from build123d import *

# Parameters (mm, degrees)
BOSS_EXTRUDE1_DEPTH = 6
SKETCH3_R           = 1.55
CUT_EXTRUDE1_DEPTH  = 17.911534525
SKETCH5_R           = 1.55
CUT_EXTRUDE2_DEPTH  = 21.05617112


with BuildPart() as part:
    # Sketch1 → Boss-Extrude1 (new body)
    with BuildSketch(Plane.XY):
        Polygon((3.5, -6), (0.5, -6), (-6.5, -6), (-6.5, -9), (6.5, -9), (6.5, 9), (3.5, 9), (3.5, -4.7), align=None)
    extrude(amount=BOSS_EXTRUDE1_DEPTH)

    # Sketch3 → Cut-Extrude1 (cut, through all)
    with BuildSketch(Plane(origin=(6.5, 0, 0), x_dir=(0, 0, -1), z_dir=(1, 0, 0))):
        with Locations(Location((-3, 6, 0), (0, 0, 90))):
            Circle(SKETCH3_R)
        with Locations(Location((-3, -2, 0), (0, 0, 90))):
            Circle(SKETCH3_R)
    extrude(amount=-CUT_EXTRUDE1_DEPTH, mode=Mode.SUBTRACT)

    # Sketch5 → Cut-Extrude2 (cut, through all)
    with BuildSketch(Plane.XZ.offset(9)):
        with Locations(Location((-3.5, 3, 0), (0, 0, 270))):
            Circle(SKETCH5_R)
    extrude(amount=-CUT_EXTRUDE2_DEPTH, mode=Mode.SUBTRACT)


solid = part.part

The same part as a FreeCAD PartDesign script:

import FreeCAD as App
import Part
import Sketcher
from FreeCAD import Vector

doc = App.newDocument("Part")
body = doc.addObject("PartDesign::Body", "Body")

sketch1 = body.newObject("Sketcher::SketchObject", "Sketch")
sketch1.AttachmentSupport = (doc.getObject("XY_Plane"), [""])
sketch1.MapMode = "FlatFace"
sketch1.addGeometry([
    Part.LineSegment(Vector(3.5, -6, 0), Vector(-6.5, -6, 0)),
    Part.LineSegment(Vector(-6.5, -6, 0), Vector(-6.5, -9, 0)),
    Part.LineSegment(Vector(-6.5, -9, 0), Vector(6.5, -9, 0)),
    Part.LineSegment(Vector(6.5, -9, 0), Vector(6.5, 9, 0)),
    Part.LineSegment(Vector(6.5, 9, 0), Vector(3.5, 9, 0)),
    Part.LineSegment(Vector(3.5, 9, 0), Vector(3.5, -6, 0)),
], False)
sketch1.addConstraint([
    Sketcher.Constraint("Coincident", 0, 2, 1, 1),
    Sketcher.Constraint("Coincident", 1, 2, 2, 1),
    Sketcher.Constraint("Coincident", 2, 2, 3, 1),
    Sketcher.Constraint("Coincident", 3, 2, 4, 1),
    Sketcher.Constraint("Coincident", 4, 2, 5, 1),
    Sketcher.Constraint("Coincident", 5, 2, 0, 1),
    Sketcher.Constraint("Horizontal", 0),
    Sketcher.Constraint("Vertical", 1),
    Sketcher.Constraint("Horizontal", 2),
    Sketcher.Constraint("Vertical", 3),
    Sketcher.Constraint("Horizontal", 4),
    Sketcher.Constraint("Vertical", 5),
    Sketcher.Constraint("Symmetric", 1, 2, 3, 2, -1, 1),
    Sketcher.Constraint("Equal", 4, 1),
    Sketcher.Constraint("DistanceX", 0, 2, 0, 1, 10.0),
    Sketcher.Constraint("DistanceX", 2, 1, 2, 2, 13.0),
    Sketcher.Constraint("DistanceY", 3, 1, 3, 2, 18.0),
])
pad1 = body.newObject("PartDesign::Pad", "Pad")
pad1.Profile = sketch1
pad1.Length = 6

sketch2 = body.newObject("Sketcher::SketchObject", "Sketch001")
sketch2.AttachmentSupport = (doc.getObject("YZ_Plane"), [""])
sketch2.MapMode = "FlatFace"
sketch2.AttachmentOffset = App.Placement(Vector(0, 0, 6.5), App.Rotation())
sketch2.addGeometry([
    Part.Circle(Vector(6, 3, 0), Vector(0, 0, 1), 1.6),
    Part.Circle(Vector(-2, 3, 0), Vector(0, 0, 1), 1.6),
], False)
sketch2.addConstraint([
    Sketcher.Constraint("Equal", 0, 1),
    Sketcher.Constraint("Horizontal", 0, 3, 1, 3),
    Sketcher.Constraint("Diameter", 0, 3.1),
    Sketcher.Constraint("DistanceX", -1, 1, 0, 3, 6.0),
    Sketcher.Constraint("DistanceY", -1, 1, 0, 3, 3.0),
    Sketcher.Constraint("DistanceX", 1, 3, -1, 1, 2.0),
])
pocket1 = body.newObject("PartDesign::Pocket", "Pocket")
pocket1.Profile = sketch2
pocket1.Type = "ThroughAll"

sketch3 = body.newObject("Sketcher::SketchObject", "Sketch002")
sketch3.AttachmentSupport = (doc.getObject("XZ_Plane"), [""])
sketch3.MapMode = "FlatFace"
sketch3.AttachmentOffset = App.Placement(Vector(0, 0, 9), App.Rotation())
sketch3.addGeometry(Part.Circle(Vector(-3.5, 3, 0), Vector(0, 0, 1), 1.6), False)
sketch3.addConstraint([
    Sketcher.Constraint("Diameter", 0, 3.1),
    Sketcher.Constraint("DistanceY", -1, 1, 0, 3, 3.0),
    Sketcher.Constraint("DistanceX", 0, 3, -1, 1, 3.5),
])
pocket2 = body.newObject("PartDesign::Pocket", "Pocket001")
pocket2.Profile = sketch3
pocket2.Type = "ThroughAll"

doc.recompute()
